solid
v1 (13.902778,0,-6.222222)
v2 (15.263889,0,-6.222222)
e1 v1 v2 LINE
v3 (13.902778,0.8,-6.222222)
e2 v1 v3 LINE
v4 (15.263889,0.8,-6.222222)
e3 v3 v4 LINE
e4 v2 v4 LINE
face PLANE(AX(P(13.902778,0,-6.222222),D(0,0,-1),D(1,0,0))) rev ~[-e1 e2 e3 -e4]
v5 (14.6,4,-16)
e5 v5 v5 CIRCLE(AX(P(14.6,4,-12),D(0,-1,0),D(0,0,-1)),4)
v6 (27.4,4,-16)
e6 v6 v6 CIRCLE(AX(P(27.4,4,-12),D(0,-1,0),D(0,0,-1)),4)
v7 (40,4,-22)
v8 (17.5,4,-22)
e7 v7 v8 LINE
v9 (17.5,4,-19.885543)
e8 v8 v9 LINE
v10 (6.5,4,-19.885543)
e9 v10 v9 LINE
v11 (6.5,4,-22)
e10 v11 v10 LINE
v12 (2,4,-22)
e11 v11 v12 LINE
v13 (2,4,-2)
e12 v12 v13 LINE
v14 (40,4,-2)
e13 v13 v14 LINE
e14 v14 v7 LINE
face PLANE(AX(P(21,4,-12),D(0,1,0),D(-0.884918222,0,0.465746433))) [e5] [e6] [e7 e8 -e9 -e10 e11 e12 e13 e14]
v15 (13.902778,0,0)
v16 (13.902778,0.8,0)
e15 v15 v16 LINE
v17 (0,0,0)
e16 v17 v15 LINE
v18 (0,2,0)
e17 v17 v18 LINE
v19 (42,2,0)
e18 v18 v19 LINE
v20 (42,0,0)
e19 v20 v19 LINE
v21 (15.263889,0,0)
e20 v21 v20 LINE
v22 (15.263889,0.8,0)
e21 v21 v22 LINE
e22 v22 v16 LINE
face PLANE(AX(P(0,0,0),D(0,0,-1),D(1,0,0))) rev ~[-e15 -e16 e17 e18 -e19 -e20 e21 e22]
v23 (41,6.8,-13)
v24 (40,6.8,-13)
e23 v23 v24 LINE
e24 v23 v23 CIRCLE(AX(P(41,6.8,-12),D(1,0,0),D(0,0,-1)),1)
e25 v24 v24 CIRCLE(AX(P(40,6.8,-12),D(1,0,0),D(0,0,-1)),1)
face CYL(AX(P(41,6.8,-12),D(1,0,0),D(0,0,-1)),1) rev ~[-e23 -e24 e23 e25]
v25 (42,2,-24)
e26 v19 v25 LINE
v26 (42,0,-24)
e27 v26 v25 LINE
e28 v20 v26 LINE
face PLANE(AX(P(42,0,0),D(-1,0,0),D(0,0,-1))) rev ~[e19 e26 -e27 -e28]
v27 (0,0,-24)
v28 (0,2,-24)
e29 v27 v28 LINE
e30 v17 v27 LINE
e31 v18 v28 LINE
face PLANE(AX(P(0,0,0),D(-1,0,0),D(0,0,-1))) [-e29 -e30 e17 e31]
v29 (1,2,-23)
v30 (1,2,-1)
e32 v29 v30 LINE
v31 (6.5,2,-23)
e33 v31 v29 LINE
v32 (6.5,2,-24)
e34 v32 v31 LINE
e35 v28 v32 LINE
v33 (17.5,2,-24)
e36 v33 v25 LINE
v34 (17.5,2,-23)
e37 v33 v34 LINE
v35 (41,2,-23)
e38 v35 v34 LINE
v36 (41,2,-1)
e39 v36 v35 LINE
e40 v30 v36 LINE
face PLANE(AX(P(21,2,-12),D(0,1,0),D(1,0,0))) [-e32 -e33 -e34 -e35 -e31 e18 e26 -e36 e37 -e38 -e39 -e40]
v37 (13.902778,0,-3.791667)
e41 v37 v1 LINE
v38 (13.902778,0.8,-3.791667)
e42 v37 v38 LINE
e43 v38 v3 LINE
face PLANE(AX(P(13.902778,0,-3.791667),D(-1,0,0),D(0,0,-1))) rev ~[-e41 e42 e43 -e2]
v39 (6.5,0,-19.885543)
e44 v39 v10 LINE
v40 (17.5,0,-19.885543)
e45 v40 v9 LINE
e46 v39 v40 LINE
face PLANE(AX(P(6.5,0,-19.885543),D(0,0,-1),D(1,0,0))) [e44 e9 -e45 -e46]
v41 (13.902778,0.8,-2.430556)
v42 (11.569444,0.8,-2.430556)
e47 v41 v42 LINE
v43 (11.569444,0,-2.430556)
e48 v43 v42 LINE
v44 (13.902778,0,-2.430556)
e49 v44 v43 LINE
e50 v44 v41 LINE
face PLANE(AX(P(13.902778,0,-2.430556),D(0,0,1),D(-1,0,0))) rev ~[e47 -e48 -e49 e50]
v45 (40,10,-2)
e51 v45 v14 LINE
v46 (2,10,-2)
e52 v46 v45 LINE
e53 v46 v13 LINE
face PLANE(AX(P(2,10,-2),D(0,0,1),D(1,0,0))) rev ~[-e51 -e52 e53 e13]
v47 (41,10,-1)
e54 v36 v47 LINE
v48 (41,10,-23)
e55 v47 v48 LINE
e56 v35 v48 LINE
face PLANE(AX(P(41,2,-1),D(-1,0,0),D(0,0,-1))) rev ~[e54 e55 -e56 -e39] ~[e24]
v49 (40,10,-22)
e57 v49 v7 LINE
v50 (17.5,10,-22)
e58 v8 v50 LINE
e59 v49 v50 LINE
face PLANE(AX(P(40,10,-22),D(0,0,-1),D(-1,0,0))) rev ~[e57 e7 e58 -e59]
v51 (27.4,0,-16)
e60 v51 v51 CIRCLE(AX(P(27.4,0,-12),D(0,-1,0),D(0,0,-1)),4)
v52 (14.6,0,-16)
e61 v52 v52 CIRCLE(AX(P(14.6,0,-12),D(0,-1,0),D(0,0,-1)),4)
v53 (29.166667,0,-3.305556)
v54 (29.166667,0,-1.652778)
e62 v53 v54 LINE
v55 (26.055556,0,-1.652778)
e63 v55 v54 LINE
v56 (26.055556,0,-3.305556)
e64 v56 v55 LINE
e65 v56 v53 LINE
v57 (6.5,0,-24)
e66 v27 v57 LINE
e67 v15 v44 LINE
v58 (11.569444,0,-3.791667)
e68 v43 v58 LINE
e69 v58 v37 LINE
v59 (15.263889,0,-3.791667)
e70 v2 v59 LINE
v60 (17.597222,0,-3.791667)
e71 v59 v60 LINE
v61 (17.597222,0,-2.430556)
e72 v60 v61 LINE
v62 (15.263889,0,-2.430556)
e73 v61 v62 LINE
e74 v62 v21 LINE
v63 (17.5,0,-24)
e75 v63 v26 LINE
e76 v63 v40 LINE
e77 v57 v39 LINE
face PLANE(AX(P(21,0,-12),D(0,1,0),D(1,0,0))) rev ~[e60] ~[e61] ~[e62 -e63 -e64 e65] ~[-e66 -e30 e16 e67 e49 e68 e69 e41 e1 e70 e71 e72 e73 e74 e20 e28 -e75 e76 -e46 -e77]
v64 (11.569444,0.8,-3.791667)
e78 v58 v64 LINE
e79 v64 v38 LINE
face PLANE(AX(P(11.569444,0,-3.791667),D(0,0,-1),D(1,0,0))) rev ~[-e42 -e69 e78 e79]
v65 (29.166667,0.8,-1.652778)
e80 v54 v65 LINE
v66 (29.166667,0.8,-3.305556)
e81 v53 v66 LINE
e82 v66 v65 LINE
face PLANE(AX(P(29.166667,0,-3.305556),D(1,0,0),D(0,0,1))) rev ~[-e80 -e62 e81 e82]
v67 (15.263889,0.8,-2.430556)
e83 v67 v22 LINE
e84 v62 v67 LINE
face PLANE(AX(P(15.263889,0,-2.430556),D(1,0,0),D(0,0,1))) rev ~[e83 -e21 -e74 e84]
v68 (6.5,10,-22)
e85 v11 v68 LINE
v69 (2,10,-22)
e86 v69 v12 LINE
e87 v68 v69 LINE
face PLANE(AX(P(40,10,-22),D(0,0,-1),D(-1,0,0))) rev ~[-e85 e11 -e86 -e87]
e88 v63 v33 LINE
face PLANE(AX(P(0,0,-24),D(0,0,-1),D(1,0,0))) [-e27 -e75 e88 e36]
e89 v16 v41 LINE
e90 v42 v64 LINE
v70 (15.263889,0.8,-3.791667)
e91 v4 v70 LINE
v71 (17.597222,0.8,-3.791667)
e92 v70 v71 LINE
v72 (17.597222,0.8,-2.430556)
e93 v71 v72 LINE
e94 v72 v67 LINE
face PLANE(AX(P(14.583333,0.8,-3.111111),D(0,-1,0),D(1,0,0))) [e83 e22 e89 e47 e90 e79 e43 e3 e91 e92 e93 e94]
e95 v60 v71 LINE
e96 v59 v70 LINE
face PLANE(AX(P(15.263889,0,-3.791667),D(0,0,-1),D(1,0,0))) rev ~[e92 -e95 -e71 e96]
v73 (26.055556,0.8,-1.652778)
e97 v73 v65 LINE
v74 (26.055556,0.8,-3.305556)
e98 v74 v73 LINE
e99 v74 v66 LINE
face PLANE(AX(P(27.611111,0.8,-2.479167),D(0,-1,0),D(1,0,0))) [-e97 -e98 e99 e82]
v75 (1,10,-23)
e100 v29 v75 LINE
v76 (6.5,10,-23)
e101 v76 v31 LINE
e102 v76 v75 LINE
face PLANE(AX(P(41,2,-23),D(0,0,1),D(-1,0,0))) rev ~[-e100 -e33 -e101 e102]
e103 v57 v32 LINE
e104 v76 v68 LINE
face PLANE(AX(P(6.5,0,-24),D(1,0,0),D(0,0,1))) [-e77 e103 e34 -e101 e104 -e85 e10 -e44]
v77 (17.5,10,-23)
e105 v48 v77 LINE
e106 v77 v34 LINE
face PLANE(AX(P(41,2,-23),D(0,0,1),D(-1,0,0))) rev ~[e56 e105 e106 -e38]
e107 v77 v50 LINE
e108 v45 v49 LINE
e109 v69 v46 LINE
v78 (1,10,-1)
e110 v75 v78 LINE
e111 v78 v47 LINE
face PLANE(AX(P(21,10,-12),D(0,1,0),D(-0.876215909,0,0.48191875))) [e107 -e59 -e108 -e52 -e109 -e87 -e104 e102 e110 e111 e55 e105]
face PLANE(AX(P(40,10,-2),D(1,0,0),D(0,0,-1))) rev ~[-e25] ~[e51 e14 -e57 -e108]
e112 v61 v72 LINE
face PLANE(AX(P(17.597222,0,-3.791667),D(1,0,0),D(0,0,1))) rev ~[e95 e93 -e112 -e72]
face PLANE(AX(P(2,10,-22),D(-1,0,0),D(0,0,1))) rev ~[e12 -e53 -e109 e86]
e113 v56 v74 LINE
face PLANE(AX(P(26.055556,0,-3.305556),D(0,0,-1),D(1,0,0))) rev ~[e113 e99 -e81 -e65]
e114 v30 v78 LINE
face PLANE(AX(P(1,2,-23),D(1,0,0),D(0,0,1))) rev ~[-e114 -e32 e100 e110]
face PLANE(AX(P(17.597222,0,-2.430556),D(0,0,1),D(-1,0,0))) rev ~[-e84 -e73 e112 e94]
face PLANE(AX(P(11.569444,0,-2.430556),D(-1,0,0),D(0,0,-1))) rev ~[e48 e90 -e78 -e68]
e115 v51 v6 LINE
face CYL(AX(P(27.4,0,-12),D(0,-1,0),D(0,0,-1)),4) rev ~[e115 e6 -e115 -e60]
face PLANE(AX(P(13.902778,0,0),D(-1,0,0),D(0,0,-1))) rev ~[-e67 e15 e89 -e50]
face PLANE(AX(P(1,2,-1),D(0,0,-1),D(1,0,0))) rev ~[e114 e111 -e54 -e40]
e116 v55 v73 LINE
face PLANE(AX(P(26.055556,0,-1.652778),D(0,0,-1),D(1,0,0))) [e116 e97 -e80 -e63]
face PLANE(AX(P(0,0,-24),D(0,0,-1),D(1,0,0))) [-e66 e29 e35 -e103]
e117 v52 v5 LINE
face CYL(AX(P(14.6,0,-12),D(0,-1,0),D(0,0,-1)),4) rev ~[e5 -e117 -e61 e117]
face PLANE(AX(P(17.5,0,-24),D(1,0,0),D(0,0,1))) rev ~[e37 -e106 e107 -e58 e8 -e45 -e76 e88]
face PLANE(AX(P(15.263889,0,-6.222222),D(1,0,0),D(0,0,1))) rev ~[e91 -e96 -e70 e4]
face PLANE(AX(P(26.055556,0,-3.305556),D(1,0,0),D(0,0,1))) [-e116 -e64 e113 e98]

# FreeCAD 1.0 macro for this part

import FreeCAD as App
import Part
import Sketcher


def add_polygon(sketch, points):
    """Adds a closed chain of lines whose ends are joined by coincident constraints."""
    first, n = sketch.GeometryCount, len(points)
    for a, b in zip(points, points[1:] + points[:1]):
        sketch.addGeometry(Part.LineSegment(App.Vector(*a, 0), App.Vector(*b, 0)), False)
    for i in range(n):
        sketch.addConstraint(Sketcher.Constraint("Coincident", first + i, 2, first + (i + 1) % n, 1))

doc = App.newDocument("Part")
body = doc.addObject("PartDesign::Body", "Body")

sketch1 = body.newObject("Sketcher::SketchObject", "Sketch")
sketch1.AttachmentSupport = (doc.getObject("XZ_Plane"), [""])
sketch1.MapMode = "FlatFace"
add_polygon(sketch1, [(0, -24), (0, 0), (42, 0), (42, -24)])
sketch1.addConstraint(Sketcher.Constraint("Vertical", 0))
sketch1.addConstraint(Sketcher.Constraint("Horizontal", 1))
sketch1.addConstraint(Sketcher.Constraint("Vertical", 2))
sketch1.addConstraint(Sketcher.Constraint("Horizontal", 3))
sketch1.addConstraint(Sketcher.Constraint("Coincident", 0, 2, -1, 1))
sketch1.addConstraint(Sketcher.Constraint("DistanceX", 1, 1, 1, 2, 42.0))
sketch1.addConstraint(Sketcher.Constraint("DistanceY", 0, 1, 0, 2, 24.0))
pad1 = body.newObject("PartDesign::Pad", "Pad")
pad1.Profile = sketch1
pad1.Length = 2
pad1.Reversed = True

sketch2 = body.newObject("Sketcher::SketchObject", "Sketch001")
sketch2.AttachmentSupport = (doc.getObject("XZ_Plane"), [""])
sketch2.MapMode = "FlatFace"
sketch2.AttachmentOffset = App.Placement(App.Vector(0, 0, -2), App.Rotation())
add_polygon(sketch2, [(41, -1), (1, -1), (1, -23), (41, -23)])
sketch2.addConstraint(Sketcher.Constraint("Horizontal", 0))
sketch2.addConstraint(Sketcher.Constraint("Vertical", 1))
sketch2.addConstraint(Sketcher.Constraint("Horizontal", 2))
sketch2.addConstraint(Sketcher.Constraint("Vertical", 3))
sketch2.addConstraint(Sketcher.Constraint("DistanceX", 0, 2, 0, 1, 40.0))
sketch2.addConstraint(Sketcher.Constraint("DistanceY", 1, 2, 1, 1, 22.0))
sketch2.addConstraint(Sketcher.Constraint("DistanceX", -1, 1, 0, 2, 1.0))
sketch2.addConstraint(Sketcher.Constraint("DistanceY", 0, 2, -1, 1, 1.0))
pad2 = body.newObject("PartDesign::Pad", "Pad001")
pad2.Profile = sketch2
pad2.Length = 8
pad2.Reversed = True

sketch3 = body.newObject("Sketcher::SketchObject", "Sketch002")
sketch3.AttachmentSupport = (doc.getObject("XZ_Plane"), [""])
sketch3.MapMode = "FlatFace"
sketch3.AttachmentOffset = App.Placement(App.Vector(0, 0, -10), App.Rotation())
add_polygon(sketch3, [(40, -2), (2, -2), (2, -22), (40, -22)])
sketch3.addConstraint(Sketcher.Constraint("Horizontal", 0))
sketch3.addConstraint(Sketcher.Constraint("Vertical", 1))
sketch3.addConstraint(Sketcher.Constraint("Horizontal", 2))
sketch3.addConstraint(Sketcher.Constraint("Vertical", 3))
sketch3.addConstraint(Sketcher.Constraint("DistanceX", 0, 2, 0, 1, 38.0))
sketch3.addConstraint(Sketcher.Constraint("DistanceY", 1, 2, 1, 1, 20.0))
sketch3.addConstraint(Sketcher.Constraint("DistanceX", -1, 1, 0, 2, 2.0))
sketch3.addConstraint(Sketcher.Constraint("DistanceY", 0, 2, -1, 1, 2.0))
pocket1 = body.newObject("PartDesign::Pocket", "Pocket")
pocket1.Profile = sketch3
pocket1.Length = 6
pocket1.Reversed = True

sketch4 = body.newObject("Sketcher::SketchObject", "Sketch003")
sketch4.AttachmentSupport = (doc.getObject("XZ_Plane"), [""])
sketch4.MapMode = "FlatFace"
sketch4.addGeometry(Part.Circle(App.Vector(27.4, -12, 0), App.Vector(0, 0, 1), 4), False)
sketch4.addConstraint(Sketcher.Constraint("Diameter", 0, 8.0))
sketch4.addConstraint(Sketcher.Constraint("DistanceY", 0, 3, -1, 1, 12.0))
sketch4.addConstraint(Sketcher.Constraint("DistanceX", -1, 1, 0, 3, 27.4))
pocket2 = body.newObject("PartDesign::Pocket", "Pocket001")
pocket2.Profile = sketch4
pocket2.Type = "UpToFirst"

sketch5 = body.newObject("Sketcher::SketchObject", "Sketch004")
sketch5.AttachmentSupport = (doc.getObject("XZ_Plane"), [""])
sketch5.MapMode = "FlatFace"
sketch5.addGeometry(Part.Circle(App.Vector(14.6, -12, 0), App.Vector(0, 0, 1), 4), False)
sketch5.addConstraint(Sketcher.Constraint("Diameter", 0, 8.0))
sketch5.addConstraint(Sketcher.Constraint("DistanceY", 0, 3, -1, 1, 12.0))
sketch5.addConstraint(Sketcher.Constraint("DistanceX", -1, 1, 0, 3, 14.6))
pocket3 = body.newObject("PartDesign::Pocket", "Pocket002")
pocket3.Profile = sketch5
pocket3.Type = "UpToFirst"

sketch6 = body.newObject("Sketcher::SketchObject", "Sketch005")
sketch6.AttachmentSupport = (doc.getObject("XZ_Plane"), [""])
sketch6.MapMode = "FlatFace"
add_polygon(sketch6, [(13.9, -6.2), (15.3, -6.2), (15.3, -3.8), (17.6, -3.8), (17.6, -2.4), (15.3, -2.4), (15.3, 0), (13.9, 0), (13.9, -2.4), (11.6, -2.4), (11.6, -3.8), (13.9, -3.8)])
add_polygon(sketch6, [(26.1, -1.7), (26.1, -3.3), (29.2, -3.3), (29.2, -1.7)])
sketch6.addConstraint(Sketcher.Constraint("Horizontal", 0))
sketch6.addConstraint(Sketcher.Constraint("Vertical", 1))
sketch6.addConstraint(Sketcher.Constraint("Horizontal", 2))
sketch6.addConstraint(Sketcher.Constraint("Vertical", 3))
sketch6.addConstraint(Sketcher.Constraint("Horizontal", 4))
sketch6.addConstraint(Sketcher.Constraint("Vertical", 5))
sketch6.addConstraint(Sketcher.Constraint("Horizontal", 6))
sketch6.addConstraint(Sketcher.Constraint("Vertical", 7))
sketch6.addConstraint(Sketcher.Constraint("Horizontal", 8))
sketch6.addConstraint(Sketcher.Constraint("Vertical", 9))
sketch6.addConstraint(Sketcher.Constraint("Horizontal", 10))
sketch6.addConstraint(Sketcher.Constraint("Vertical", 11))
sketch6.addConstraint(Sketcher.Constraint("Vertical", 12))
sketch6.addConstraint(Sketcher.Constraint("Horizontal", 13))
sketch6.addConstraint(Sketcher.Constraint("Vertical", 14))
sketch6.addConstraint(Sketcher.Constraint("Horizontal", 15))
sketch6.addConstraint(Sketcher.Constraint("PointOnObject", 5, 2, -1))
sketch6.addConstraint(Sketcher.Constraint("Horizontal", 4, 2, 7, 2))
sketch6.addConstraint(Sketcher.Constraint("Horizontal", 2, 2, 9, 2))
sketch6.addConstraint(Sketcher.Constraint("Vertical", 1, 2, 4, 2))
sketch6.addConstraint(Sketcher.Constraint("Vertical", 7, 2, 10, 2))
sketch6.addConstraint(Sketcher.Constraint("Equal", 4, 8))
sketch6.addConstraint(Sketcher.Constraint("Equal", 6, 3))
sketch6.addConstraint(Sketcher.Constraint("Equal", 1, 5))
sketch6.addConstraint(Sketcher.Constraint("DistanceY", 12, 2, 3, 2, 0.875))
sketch6.addConstraint(Sketcher.Constraint("DistanceX", 0, 1, 0, 2, 1.361111))
sketch6.addConstraint(Sketcher.Constraint("DistanceX", 13, 1, 13, 2, 3.111111))
sketch6.addConstraint(Sketcher.Constraint("DistanceX", 2, 1, 2, 2, 2.333333))
sketch6.addConstraint(Sketcher.Constraint("DistanceY", 1, 1, 1, 2, 2.430556))
sketch6.addConstraint(Sketcher.Constraint("DistanceY", 12, 2, 12, 1, 1.652778))
sketch6.addConstraint(Sketcher.Constraint("DistanceX", -1, 1, 0, 2, 15.263889))
sketch6.addConstraint(Sketcher.Constraint("DistanceX", -1, 1, 12, 2, 26.055556))
pocket4 = body.newObject("PartDesign::Pocket", "Pocket003")
pocket4.Profile = sketch6
pocket4.Length = 0.8

sketch7 = body.newObject("Sketcher::SketchObject", "Sketch006")
sketch7.AttachmentSupport = (doc.getObject("XZ_Plane"), [""])
sketch7.MapMode = "FlatFace"
add_polygon(sketch7, [(6.5, -19.9), (6.5, -24), (17.5, -24), (17.5, -19.9)])
sketch7.addConstraint(Sketcher.Constraint("Vertical", 0))
sketch7.addConstraint(Sketcher.Constraint("Horizontal", 1))
sketch7.addConstraint(Sketcher.Constraint("Vertical", 2))
sketch7.addConstraint(Sketcher.Constraint("Horizontal", 3))
sketch7.addConstraint(Sketcher.Constraint("DistanceX", 1, 1, 1, 2, 11.0))
sketch7.addConstraint(Sketcher.Constraint("DistanceY", 0, 2, -1, 1, 24.0))
sketch7.addConstraint(Sketcher.Constraint("DistanceX", -1, 1, 0, 2, 6.5))
sketch7.addConstraint(Sketcher.Constraint("DistanceY", 0, 2, 0, 1, 4.114457))
pocket5 = body.newObject("PartDesign::Pocket", "Pocket004")
pocket5.Profile = sketch7
pocket5.Length = 10

sketch8 = body.newObject("Sketcher::SketchObject", "Sketch007")
sketch8.AttachmentSupport = (doc.getObject("YZ_Plane"), [""])
sketch8.MapMode = "FlatFace"
sketch8.AttachmentOffset = App.Placement(App.Vector(0, 0, 41), App.Rotation())
sketch8.addGeometry(Part.Circle(App.Vector(6.8, -12, 0), App.Vector(0, 0, 1), 1), False)
sketch8.addConstraint(Sketcher.Constraint("Diameter", 0, 2.0))
sketch8.addConstraint(Sketcher.Constraint("DistanceY", 0, 3, -1, 1, 12.0))
sketch8.addConstraint(Sketcher.Constraint("DistanceX", -1, 1, 0, 3, 6.8))
pocket6 = body.newObject("PartDesign::Pocket", "Pocket005")
pocket6.Profile = sketch8
pocket6.Type = "UpToFirst"

doc.recompute()
